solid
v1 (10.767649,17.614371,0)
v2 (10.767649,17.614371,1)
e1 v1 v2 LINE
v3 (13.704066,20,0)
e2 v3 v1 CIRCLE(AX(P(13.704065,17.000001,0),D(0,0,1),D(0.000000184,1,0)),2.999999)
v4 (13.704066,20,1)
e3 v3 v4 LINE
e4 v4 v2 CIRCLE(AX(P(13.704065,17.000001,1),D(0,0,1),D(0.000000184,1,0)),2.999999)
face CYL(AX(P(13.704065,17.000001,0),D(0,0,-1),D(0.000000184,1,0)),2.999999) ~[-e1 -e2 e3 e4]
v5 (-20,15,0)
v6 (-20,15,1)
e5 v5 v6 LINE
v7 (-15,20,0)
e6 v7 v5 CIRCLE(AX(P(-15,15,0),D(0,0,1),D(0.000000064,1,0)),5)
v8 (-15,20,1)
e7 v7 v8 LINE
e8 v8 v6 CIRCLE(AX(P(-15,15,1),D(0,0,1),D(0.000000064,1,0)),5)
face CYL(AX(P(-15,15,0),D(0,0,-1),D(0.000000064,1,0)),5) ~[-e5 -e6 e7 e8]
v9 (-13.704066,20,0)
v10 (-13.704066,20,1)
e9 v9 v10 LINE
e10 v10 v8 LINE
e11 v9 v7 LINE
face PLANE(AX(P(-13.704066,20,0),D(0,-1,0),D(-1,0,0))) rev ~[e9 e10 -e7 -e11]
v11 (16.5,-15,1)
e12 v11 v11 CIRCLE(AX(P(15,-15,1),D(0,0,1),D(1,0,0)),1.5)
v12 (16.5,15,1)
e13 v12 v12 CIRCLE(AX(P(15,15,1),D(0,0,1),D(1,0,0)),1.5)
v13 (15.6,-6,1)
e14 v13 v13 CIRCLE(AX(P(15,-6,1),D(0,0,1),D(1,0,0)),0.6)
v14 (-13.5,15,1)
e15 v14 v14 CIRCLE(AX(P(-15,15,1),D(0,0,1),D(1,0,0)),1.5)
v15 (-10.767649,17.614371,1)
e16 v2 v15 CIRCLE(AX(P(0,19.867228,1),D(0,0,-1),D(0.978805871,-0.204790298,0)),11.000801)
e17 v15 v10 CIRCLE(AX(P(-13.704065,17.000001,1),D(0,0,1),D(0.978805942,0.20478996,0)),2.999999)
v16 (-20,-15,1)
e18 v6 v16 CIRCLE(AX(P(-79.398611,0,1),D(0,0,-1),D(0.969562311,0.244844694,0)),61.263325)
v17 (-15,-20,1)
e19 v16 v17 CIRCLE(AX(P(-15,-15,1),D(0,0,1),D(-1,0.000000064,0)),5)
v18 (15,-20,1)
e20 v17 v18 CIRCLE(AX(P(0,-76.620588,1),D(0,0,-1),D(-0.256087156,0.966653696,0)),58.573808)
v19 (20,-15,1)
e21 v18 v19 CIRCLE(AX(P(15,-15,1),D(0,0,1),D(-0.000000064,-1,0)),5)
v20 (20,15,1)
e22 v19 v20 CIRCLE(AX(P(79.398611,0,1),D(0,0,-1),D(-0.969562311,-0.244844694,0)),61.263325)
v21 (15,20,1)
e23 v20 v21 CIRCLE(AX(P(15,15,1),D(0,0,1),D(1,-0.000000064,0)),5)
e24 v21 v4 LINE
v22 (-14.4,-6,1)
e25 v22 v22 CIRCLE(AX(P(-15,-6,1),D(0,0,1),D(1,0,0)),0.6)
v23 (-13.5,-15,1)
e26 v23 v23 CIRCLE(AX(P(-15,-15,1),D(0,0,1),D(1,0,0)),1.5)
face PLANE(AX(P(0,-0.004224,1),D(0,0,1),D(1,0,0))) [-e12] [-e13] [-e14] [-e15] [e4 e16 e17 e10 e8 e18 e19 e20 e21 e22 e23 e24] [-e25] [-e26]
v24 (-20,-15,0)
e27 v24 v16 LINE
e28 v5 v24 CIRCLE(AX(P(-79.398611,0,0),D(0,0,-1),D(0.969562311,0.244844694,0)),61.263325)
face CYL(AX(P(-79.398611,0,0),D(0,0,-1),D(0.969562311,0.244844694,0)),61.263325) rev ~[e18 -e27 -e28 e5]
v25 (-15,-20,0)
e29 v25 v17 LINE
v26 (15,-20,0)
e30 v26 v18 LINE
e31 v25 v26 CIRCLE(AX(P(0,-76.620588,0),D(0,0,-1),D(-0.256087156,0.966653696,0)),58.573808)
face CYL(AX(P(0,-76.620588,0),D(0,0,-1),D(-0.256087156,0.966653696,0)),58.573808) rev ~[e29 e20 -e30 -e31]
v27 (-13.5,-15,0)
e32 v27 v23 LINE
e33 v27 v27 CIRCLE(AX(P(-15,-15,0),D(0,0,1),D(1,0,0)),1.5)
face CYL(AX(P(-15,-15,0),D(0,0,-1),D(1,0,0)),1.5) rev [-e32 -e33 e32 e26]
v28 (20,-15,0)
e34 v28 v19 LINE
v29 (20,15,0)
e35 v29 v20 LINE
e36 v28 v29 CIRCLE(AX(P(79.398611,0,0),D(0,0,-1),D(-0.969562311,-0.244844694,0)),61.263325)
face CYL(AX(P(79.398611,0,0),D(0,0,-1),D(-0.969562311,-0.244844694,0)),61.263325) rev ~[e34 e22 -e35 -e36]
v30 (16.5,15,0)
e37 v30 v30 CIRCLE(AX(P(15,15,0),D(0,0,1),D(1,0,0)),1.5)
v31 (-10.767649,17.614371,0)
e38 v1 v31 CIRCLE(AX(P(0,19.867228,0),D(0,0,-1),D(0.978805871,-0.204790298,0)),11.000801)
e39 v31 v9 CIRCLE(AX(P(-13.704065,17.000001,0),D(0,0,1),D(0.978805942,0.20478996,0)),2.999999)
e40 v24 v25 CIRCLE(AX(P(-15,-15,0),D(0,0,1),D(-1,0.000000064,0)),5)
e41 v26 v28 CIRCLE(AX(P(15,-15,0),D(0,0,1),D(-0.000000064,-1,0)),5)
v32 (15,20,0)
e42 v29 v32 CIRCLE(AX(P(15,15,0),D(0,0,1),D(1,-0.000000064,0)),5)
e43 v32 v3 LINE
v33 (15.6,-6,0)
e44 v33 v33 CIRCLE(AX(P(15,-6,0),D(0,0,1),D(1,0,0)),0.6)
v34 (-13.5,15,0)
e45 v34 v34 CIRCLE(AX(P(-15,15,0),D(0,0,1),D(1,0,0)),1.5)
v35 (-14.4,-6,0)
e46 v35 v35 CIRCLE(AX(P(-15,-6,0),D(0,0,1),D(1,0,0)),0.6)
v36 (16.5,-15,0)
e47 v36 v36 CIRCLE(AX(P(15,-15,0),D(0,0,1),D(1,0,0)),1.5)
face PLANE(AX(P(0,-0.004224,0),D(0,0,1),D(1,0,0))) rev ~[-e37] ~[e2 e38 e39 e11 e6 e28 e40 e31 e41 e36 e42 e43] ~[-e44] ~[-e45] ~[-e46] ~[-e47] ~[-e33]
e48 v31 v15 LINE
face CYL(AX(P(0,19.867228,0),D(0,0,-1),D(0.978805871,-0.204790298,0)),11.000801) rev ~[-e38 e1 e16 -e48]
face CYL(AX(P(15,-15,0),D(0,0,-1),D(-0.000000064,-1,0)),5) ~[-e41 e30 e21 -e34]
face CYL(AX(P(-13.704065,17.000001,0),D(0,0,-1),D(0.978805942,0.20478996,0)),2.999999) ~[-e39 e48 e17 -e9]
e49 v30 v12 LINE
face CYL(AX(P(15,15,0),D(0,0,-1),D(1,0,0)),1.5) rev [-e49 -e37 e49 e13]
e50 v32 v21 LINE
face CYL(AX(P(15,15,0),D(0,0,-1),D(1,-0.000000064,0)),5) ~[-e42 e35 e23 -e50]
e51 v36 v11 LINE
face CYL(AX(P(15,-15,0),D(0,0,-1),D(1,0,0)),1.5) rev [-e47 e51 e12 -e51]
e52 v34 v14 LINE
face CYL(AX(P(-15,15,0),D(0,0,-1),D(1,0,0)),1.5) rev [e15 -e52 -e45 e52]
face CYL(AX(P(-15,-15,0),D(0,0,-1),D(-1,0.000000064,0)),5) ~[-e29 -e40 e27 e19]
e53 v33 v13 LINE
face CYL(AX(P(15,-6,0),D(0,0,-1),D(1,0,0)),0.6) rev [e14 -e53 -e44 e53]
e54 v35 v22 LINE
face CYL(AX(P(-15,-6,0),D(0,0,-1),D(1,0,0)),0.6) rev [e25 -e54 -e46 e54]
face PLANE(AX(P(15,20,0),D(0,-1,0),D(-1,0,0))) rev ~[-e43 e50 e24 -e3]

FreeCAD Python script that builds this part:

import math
import FreeCAD as App
import Part
import Sketcher
from FreeCAD import Vector
Q = App.Units.Quantity

doc = App.newDocument("Part")
body = doc.addObject("PartDesign::Body", "Body")

# Sketch on XY plane
sketch1 = doc.addObject("Sketcher::SketchObject", "Sketch")
body.addObject(sketch1)
sketch1.AttachmentSupport = (doc.XY_Plane, [""])
sketch1.MapMode = "FlatFace"
sketch1.addGeometry(Part.LineSegment(Vector(-13.704066, 20, 0), Vector(-15, 20, 0)), False)
sketch1.addGeometry(Part.ArcOfCircle(Part.Circle(Vector(-15, 15, 0), Vector(0, 0, 1), 5), math.radians(89.999996), math.radians(180.000004)), False)
sketch1.addGeometry(Part.ArcOfCircle(Part.Circle(Vector(-79.398611, 0, 0), Vector(0, 0, 1), 61.263325), math.radians(-14.172656), math.radians(14.172656)), False)
sketch1.addGeometry(Part.ArcOfCircle(Part.Circle(Vector(-15, -15, 0), Vector(0, 0, 1), 5), math.radians(179.999996), math.radians(270.000004)), False)
sketch1.addGeometry(Part.ArcOfCircle(Part.Circle(Vector(0, -76.620588, 0), Vector(0, 0, 1), 58.573808), math.radians(75.161986), math.radians(104.838014)), False)
sketch1.addGeometry(Part.ArcOfCircle(Part.Circle(Vector(15, -15, 0), Vector(0, 0, 1), 5), math.radians(-90.000004), math.radians(0.000004)), False)
sketch1.addGeometry(Part.ArcOfCircle(Part.Circle(Vector(79.398611, 0, 0), Vector(0, 0, 1), 61.263325), math.radians(165.827344), math.radians(194.172656)), False)
sketch1.addGeometry(Part.ArcOfCircle(Part.Circle(Vector(15, 15, 0), Vector(0, 0, 1), 5), math.radians(-0.000004), math.radians(90.000004)), False)
sketch1.addGeometry(Part.LineSegment(Vector(15, 20, 0), Vector(13.704066, 20, 0)), False)
sketch1.addGeometry(Part.ArcOfCircle(Part.Circle(Vector(13.704065, 17.000001, 0), Vector(0, 0, 1), 2.999999), math.radians(89.999989), math.radians(168.182796)), False)
sketch1.addGeometry(Part.ArcOfCircle(Part.Circle(Vector(0, 19.867228, 0), Vector(0, 0, 1), 11.000801), math.radians(-168.182776), math.radians(-11.817224)), False)
sketch1.addGeometry(Part.ArcOfCircle(Part.Circle(Vector(-13.704065, 17.000001, 0), Vector(0, 0, 1), 2.999999), math.radians(11.817204), math.radians(90.000011)), False)
sketch1.addGeometry(Part.Circle(Vector(-15, -15, 0), Vector(0, 0, 1), 1.5), False)
sketch1.addGeometry(Part.Circle(Vector(-15, -6, 0), Vector(0, 0, 1), 0.6), False)
sketch1.addGeometry(Part.Circle(Vector(15, -15, 0), Vector(0, 0, 1), 1.5), False)
sketch1.addGeometry(Part.Circle(Vector(15, -6, 0), Vector(0, 0, 1), 0.6), False)
sketch1.addGeometry(Part.Circle(Vector(-15, 15, 0), Vector(0, 0, 1), 1.5), False)
sketch1.addGeometry(Part.Circle(Vector(15, 15, 0), Vector(0, 0, 1), 1.5), False)
sketch1.addConstraint(Sketcher.Constraint("Tangent", 0, 2, 1, 1))
sketch1.addConstraint(Sketcher.Constraint("Coincident", 1, 2, 2, 2))
sketch1.addConstraint(Sketcher.Constraint("Coincident", 2, 1, 3, 1))
sketch1.addConstraint(Sketcher.Constraint("Coincident", 3, 2, 4, 2))
sketch1.addConstraint(Sketcher.Constraint("Coincident", 4, 1, 5, 1))
sketch1.addConstraint(Sketcher.Constraint("Coincident", 5, 2, 6, 2))
sketch1.addConstraint(Sketcher.Constraint("Coincident", 6, 1, 7, 1))
sketch1.addConstraint(Sketcher.Constraint("Tangent", 7, 2, 8, 1))
sketch1.addConstraint(Sketcher.Constraint("Tangent", 8, 2, 9, 1))
sketch1.addConstraint(Sketcher.Constraint("Tangent", 9, 2, 10, 2))
sketch1.addConstraint(Sketcher.Constraint("Tangent", 10, 1, 11, 1))
sketch1.addConstraint(Sketcher.Constraint("Tangent", 11, 2, 0, 1))
sketch1.addConstraint(Sketcher.Constraint("Horizontal", 0))
sketch1.addConstraint(Sketcher.Constraint("Horizontal", 8))
sketch1.addConstraint(Sketcher.Constraint("Coincident", 12, 3, 3, 3))
sketch1.addConstraint(Sketcher.Constraint("Coincident", 14, 3, 5, 3))
sketch1.addConstraint(Sketcher.Constraint("Coincident", 16, 3, 1, 3))
sketch1.addConstraint(Sketcher.Constraint("Coincident", 17, 3, 7, 3))
sketch1.addConstraint(Sketcher.Constraint("Equal", 1, 3))
sketch1.addConstraint(Sketcher.Constraint("Equal", 3, 5))
sketch1.addConstraint(Sketcher.Constraint("Equal", 2, 6))
sketch1.addConstraint(Sketcher.Constraint("Equal", 5, 7))
sketch1.addConstraint(Sketcher.Constraint("Equal", 9, 11))
sketch1.addConstraint(Sketcher.Constraint("Equal", 12, 14))
sketch1.addConstraint(Sketcher.Constraint("Equal", 13, 15))
sketch1.addConstraint(Sketcher.Constraint("Equal", 14, 16))
sketch1.addConstraint(Sketcher.Constraint("Equal", 16, 17))
sketch1.addConstraint(Sketcher.Constraint("Symmetric", 1, 3, 5, 3, -1, 1))
sketch1.addConstraint(Sketcher.Constraint("Symmetric", 2, 3, 6, 3, -1, 1))
sketch1.addConstraint(Sketcher.Constraint("Symmetric", 3, 3, 7, 3, -1, 1))
sketch1.addConstraint(Sketcher.Constraint("Symmetric", 3, 3, 5, 3, -2))
sketch1.addConstraint(Sketcher.Constraint("Symmetric", 13, 3, 15, 3, -2))
sketch1.addConstraint(Sketcher.Constraint("PointOnObject", 2, 3, -1))
sketch1.addConstraint(Sketcher.Constraint("PointOnObject", 4, 3, -2))
sketch1.addConstraint(Sketcher.Constraint("PointOnObject", 10, 3, -2))
sketch1.addConstraint(Sketcher.Constraint("Horizontal", 17, 3, 1, 2))
sketch1.addConstraint(Sketcher.Constraint("Vertical", 12, 3, 13, 3))
sketch1.addConstraint(Sketcher.Constraint("Vertical", 0, 2, 3, 2))
sketch1.addConstraint(Sketcher.Constraint("Diameter", 12, Q("3 mm")))
sketch1.addConstraint(Sketcher.Constraint("Radius", 1, Q("5 mm")))
sketch1.addConstraint(Sketcher.Constraint("Radius", 9, Q("2.999999 mm")))
sketch1.addConstraint(Sketcher.Constraint("Diameter", 13, Q("1.2 mm")))
sketch1.addConstraint(Sketcher.Constraint("DistanceX", 1, 3, -1, 1, Q("15 mm")))
sketch1.addConstraint(Sketcher.Constraint("DistanceY", -1, 1, 1, 3, Q("15 mm")))
sketch1.addConstraint(Sketcher.Constraint("DistanceY", 13, 3, -1, 1, Q("6 mm")))
sketch1.addConstraint(Sketcher.Constraint("Radius", 10, Q("11.000801 mm")))
sketch1.addConstraint(Sketcher.Constraint("Radius", 4, Q("58.573808 mm")))
sketch1.addConstraint(Sketcher.Constraint("Radius", 2, Q("61.263325 mm")))
sketch1.addConstraint(Sketcher.Constraint("DistanceX", 0, 2, 0, 1, Q("1.295934 mm")))
pad1 = doc.addObject("PartDesign::Pad", "Pad")
body.addObject(pad1)
pad1.Profile = sketch1
pad1.Length = 1

doc.recompute()
